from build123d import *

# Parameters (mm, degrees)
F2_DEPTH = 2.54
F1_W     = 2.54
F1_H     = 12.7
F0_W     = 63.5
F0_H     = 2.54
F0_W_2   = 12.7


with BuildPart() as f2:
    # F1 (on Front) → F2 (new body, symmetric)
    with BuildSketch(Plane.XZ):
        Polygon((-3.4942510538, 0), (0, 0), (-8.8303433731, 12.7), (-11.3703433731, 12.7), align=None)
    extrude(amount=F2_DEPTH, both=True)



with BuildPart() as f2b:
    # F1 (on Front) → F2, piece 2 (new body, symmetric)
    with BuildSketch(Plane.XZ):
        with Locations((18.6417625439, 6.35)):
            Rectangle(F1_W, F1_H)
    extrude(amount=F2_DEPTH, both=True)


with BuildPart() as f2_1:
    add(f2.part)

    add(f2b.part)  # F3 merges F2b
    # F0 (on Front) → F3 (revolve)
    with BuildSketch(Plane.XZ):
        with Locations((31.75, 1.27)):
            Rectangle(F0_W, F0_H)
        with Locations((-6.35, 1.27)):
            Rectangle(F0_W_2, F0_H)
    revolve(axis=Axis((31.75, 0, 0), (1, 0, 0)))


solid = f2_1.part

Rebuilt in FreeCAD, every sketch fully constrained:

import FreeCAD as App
import Part
import Sketcher
Q = App.Units.Quantity

doc = App.newDocument("Part")
params = doc.addObject("Spreadsheet::Sheet", "Params")
for row, (alias, value) in enumerate([
    ("sketch1_width", "0.1 in"),
    ("pad1_length", "0.2 in"),
    ("sketch2_width", "0.1 in"),
    ("sketch2_height", "0.5 in"),
    ("pad2_length", "0.2 in"),
    ("sketch3_width", "3 in"),
    ("sketch3_height", "0.1 in"),
    ("revolution_angle", "360 deg"),
], start=1):
    params.set(f"A{row}", alias)
    params.set(f"B{row}", "=" + value)
    params.setAlias(f"B{row}", alias)

body = doc.addObject("PartDesign::Body", "Body")

sketch1 = doc.addObject("Sketcher::SketchObject", "Sketch")
body.addObject(sketch1)
sketch1.AttachmentSupport = (doc.XZ_Plane, [""])
sketch1.MapMode = "FlatFace"
sketch1.addGeometry([
    Part.LineSegment(App.Vector(-3.5, 0, 0), App.Vector(0, 0, 0)),
    Part.LineSegment(App.Vector(0, 0, 0), App.Vector(-8.8, 12.7, 0)),
    Part.LineSegment(App.Vector(-8.8, 12.7, 0), App.Vector(-11.4, 12.7, 0)),
    Part.LineSegment(App.Vector(-11.4, 12.7, 0), App.Vector(-3.5, 0, 0)),
], False)
sketch1.addConstraint([
    Sketcher.Constraint("Coincident", 0, 2, 1, 1),
    Sketcher.Constraint("Coincident", 1, 2, 2, 1),
    Sketcher.Constraint("Coincident", 2, 2, 3, 1),
    Sketcher.Constraint("Coincident", 3, 2, 0, 1),
    Sketcher.Constraint("Horizontal", 0),
    Sketcher.Constraint("Horizontal", 2),
    Sketcher.Constraint("Coincident", 0, 2, -1, 1),
    Sketcher.Constraint("DistanceX", 2, 2, 2, 1, Q("0.1 in")),
    Sketcher.Constraint("DistanceY", -1, 1, 1, 2, Q("0.5 in")),
    Sketcher.Constraint("DistanceX", 0, 1, 0, 2, Q("3.494251 mm")),
    Sketcher.Constraint("Distance", 3, Q("14.94399 mm")),
])
sketch1.setExpression("Constraints[7]", "Params.sketch1_width")
pad1 = doc.addObject("PartDesign::Pad", "Pad")
body.addObject(pad1)
pad1.Profile = sketch1
pad1.setExpression("Length", "Params.pad1_length")
pad1.Midplane = True
body2 = doc.addObject("PartDesign::Body", "Body001")

sketch2 = doc.addObject("Sketcher::SketchObject", "Sketch001")
body2.addObject(sketch2)
sketch2.AttachmentSupport = (doc.getObject("XZ_Plane001"), [""])
sketch2.MapMode = "FlatFace"
sketch2.addGeometry([
    Part.LineSegment(App.Vector(17.4, 12.7, 0), App.Vector(17.4, 0, 0)),
    Part.LineSegment(App.Vector(17.4, 0, 0), App.Vector(19.9, 0, 0)),
    Part.LineSegment(App.Vector(19.9, 0, 0), App.Vector(19.9, 12.7, 0)),
    Part.LineSegment(App.Vector(19.9, 12.7, 0), App.Vector(17.4, 12.7, 0)),
], False)
sketch2.addConstraint([
    Sketcher.Constraint("Coincident", 0, 2, 1, 1),
    Sketcher.Constraint("Coincident", 1, 2, 2, 1),
    Sketcher.Constraint("Coincident", 2, 2, 3, 1),
    Sketcher.Constraint("Coincident", 3, 2, 0, 1),
    Sketcher.Constraint("Vertical", 0),
    Sketcher.Constraint("Horizontal", 1),
    Sketcher.Constraint("Vertical", 2),
    Sketcher.Constraint("Horizontal", 3),
    Sketcher.Constraint("PointOnObject", 0, 2, -1),
    Sketcher.Constraint("DistanceX", 1, 1, 1, 2, Q("0.1 in")),
    Sketcher.Constraint("DistanceY", 0, 2, 0, 1, Q("0.5 in")),
    Sketcher.Constraint("DistanceX", -1, 1, 0, 2, Q("17.371763 mm")),
])
sketch2.setExpression("Constraints[9]", "Params.sketch2_width")
sketch2.setExpression("Constraints[10]", "Params.sketch2_height")
pad2 = doc.addObject("PartDesign::Pad", "Pad001")
body2.addObject(pad2)
pad2.Profile = sketch2
pad2.setExpression("Length", "Params.pad2_length")
pad2.Midplane = True
body.AllowCompound = True
doc.recompute()

boolean = doc.addObject("PartDesign::Boolean", "Boolean")
body.addObject(boolean)
boolean.Type = "Fuse"
boolean.addObjects([body2])

sketch3 = doc.addObject("Sketcher::SketchObject", "Sketch002")
body.addObject(sketch3)
sketch3.AttachmentSupport = (doc.XZ_Plane, [""])
sketch3.MapMode = "FlatFace"
sketch3.addGeometry([
    Part.LineSegment(App.Vector(63.5, 0, 0), App.Vector(63.5, 2.5, 0)),
    Part.LineSegment(App.Vector(63.5, 2.5, 0), App.Vector(-12.7, 2.5, 0)),
    Part.LineSegment(App.Vector(-12.7, 2.5, 0), App.Vector(-12.7, 0, 0)),
    Part.LineSegment(App.Vector(-12.7, 0, 0), App.Vector(63.5, 0, 0)),
], False)
sketch3.addConstraint([
    Sketcher.Constraint("Coincident", 0, 2, 1, 1),
    Sketcher.Constraint("Coincident", 1, 2, 2, 1),
    Sketcher.Constraint("Coincident", 2, 2, 3, 1),
    Sketcher.Constraint("Coincident", 3, 2, 0, 1),
    Sketcher.Constraint("Vertical", 0),
    Sketcher.Constraint("Horizontal", 1),
    Sketcher.Constraint("Vertical", 2),
    Sketcher.Constraint("Horizontal", 3),
    Sketcher.Constraint("PointOnObject", 2, 2, -1),
    Sketcher.Constraint("DistanceX", 1, 2, 1, 1, Q("3 in")),
    Sketcher.Constraint("DistanceY", 0, 1, 0, 2, Q("0.1 in")),
    Sketcher.Constraint("DistanceX", -1, 1, 0, 2, Q("2.5 in")),
])
sketch3.setExpression("Constraints[9]", "Params.sketch3_width")
sketch3.setExpression("Constraints[10]", "Params.sketch3_height")
revolution = doc.addObject("PartDesign::Revolution", "Revolution")
body.addObject(revolution)
revolution.Profile = sketch3
revolution.ReferenceAxis = (sketch3, ["H_Axis"])
revolution.setExpression("Angle", "Params.revolution_angle")

doc.recompute()
